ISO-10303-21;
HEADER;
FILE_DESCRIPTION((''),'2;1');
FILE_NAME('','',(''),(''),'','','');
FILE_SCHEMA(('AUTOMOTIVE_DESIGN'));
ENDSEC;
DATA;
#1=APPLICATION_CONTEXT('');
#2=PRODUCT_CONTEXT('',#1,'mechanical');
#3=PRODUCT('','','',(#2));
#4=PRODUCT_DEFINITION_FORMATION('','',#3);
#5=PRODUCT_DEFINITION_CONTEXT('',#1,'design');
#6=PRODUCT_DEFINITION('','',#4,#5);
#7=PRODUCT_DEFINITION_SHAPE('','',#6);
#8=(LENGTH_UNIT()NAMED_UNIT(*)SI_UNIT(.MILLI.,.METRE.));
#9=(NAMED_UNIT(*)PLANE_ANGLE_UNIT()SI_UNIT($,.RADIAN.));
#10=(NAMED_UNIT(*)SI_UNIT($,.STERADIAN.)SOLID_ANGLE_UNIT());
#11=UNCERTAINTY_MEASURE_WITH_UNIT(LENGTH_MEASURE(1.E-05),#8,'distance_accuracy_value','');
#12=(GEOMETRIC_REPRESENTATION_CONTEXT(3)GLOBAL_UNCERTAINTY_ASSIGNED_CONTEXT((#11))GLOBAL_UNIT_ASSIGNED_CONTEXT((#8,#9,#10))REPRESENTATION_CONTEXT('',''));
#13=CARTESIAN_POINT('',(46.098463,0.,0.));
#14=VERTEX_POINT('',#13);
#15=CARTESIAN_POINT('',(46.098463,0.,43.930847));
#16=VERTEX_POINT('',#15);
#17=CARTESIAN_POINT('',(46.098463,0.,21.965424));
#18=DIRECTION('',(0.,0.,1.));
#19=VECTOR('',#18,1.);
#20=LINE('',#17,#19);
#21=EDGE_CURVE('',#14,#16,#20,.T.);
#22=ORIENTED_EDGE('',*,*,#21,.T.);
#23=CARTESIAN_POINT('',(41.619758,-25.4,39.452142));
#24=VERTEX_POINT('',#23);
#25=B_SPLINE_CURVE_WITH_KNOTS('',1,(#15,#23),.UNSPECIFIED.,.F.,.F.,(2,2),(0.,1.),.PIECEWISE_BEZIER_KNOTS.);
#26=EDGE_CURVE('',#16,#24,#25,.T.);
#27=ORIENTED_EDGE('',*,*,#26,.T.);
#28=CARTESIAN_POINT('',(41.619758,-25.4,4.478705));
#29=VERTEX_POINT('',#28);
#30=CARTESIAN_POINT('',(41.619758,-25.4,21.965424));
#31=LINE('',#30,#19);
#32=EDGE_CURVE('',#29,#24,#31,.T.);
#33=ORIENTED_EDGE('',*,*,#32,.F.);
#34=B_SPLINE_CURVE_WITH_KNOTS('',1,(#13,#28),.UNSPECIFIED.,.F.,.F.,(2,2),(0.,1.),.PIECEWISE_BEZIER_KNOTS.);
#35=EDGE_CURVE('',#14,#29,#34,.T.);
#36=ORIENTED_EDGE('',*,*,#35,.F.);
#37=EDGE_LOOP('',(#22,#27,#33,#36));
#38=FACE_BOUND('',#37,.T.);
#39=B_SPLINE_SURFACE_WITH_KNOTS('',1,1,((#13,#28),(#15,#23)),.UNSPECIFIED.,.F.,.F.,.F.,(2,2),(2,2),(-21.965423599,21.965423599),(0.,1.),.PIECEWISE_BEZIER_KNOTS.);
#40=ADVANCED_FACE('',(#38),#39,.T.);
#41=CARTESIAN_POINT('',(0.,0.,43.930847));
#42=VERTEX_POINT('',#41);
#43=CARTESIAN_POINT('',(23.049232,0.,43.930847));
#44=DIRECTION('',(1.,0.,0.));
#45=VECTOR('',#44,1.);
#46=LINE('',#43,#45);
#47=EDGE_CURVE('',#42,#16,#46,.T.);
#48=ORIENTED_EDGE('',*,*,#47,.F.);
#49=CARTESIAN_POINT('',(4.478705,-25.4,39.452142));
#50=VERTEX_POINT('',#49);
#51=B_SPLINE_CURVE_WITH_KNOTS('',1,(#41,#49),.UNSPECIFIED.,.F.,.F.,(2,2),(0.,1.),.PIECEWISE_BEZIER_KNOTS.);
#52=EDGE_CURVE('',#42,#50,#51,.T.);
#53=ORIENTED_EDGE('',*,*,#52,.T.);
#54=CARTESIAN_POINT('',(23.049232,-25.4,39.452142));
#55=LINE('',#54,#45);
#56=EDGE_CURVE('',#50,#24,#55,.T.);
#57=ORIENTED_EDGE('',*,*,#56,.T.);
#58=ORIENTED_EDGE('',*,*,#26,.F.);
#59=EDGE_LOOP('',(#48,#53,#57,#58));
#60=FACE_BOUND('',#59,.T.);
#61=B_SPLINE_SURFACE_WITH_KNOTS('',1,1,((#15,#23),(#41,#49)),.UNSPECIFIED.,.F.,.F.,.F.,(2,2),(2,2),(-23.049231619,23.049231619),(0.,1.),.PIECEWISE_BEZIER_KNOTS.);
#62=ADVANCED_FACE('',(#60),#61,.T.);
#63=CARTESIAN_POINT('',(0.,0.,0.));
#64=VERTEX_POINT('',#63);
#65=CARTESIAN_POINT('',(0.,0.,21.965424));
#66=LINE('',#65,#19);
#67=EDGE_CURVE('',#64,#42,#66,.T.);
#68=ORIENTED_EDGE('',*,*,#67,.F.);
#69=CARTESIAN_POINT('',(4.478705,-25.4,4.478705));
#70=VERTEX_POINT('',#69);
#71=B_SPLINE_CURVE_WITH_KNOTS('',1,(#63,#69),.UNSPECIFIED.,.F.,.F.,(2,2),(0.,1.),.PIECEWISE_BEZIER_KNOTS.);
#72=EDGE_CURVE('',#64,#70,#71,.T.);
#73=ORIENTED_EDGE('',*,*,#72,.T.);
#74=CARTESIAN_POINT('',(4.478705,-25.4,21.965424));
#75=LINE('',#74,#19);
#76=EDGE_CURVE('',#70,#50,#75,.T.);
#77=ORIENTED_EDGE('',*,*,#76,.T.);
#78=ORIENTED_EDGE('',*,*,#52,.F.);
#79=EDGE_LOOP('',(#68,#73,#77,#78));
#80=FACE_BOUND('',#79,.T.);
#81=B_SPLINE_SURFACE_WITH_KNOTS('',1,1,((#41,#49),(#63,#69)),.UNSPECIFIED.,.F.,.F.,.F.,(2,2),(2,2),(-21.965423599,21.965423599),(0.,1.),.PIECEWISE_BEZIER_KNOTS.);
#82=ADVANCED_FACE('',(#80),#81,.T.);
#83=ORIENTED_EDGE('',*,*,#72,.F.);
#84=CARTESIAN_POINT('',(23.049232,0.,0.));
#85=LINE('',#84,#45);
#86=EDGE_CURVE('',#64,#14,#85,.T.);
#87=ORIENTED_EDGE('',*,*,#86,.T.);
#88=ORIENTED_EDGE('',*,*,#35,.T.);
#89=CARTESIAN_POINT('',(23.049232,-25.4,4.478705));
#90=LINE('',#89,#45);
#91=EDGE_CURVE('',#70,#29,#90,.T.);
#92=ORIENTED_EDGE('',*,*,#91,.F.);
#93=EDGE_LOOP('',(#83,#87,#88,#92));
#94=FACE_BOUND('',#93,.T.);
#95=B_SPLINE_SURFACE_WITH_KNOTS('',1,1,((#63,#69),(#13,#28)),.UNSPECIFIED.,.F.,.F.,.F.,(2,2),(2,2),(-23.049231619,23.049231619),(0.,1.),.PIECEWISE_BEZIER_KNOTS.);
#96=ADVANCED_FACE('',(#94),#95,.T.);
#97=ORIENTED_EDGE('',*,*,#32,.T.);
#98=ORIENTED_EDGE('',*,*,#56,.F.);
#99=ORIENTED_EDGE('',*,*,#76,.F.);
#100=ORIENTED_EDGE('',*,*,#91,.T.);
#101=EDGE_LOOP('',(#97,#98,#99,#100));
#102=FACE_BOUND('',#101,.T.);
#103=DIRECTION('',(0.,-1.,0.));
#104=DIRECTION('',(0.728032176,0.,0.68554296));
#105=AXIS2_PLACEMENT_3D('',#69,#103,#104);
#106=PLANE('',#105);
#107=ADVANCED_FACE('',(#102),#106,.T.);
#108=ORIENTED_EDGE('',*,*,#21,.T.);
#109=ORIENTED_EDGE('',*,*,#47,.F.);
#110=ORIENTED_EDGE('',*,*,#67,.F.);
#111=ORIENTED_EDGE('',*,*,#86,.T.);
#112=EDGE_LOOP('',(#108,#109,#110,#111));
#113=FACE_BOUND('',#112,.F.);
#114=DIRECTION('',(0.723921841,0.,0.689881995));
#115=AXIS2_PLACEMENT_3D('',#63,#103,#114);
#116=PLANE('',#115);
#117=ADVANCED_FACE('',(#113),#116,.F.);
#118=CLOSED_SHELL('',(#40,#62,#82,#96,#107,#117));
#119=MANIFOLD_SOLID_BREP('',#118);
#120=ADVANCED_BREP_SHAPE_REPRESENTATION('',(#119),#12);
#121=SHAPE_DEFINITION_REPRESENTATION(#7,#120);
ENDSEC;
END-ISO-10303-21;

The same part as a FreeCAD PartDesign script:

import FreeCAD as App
import Part
import Sketcher

V = App.Vector
Q = App.Units.Quantity

doc = App.newDocument("Part")
body = doc.addObject("PartDesign::Body", "Body")

# Sketch on XZ plane
sketch1 = doc.addObject("Sketcher::SketchObject", "Sketch")
body.addObject(sketch1)
sketch1.AttachmentSupport = (doc.XZ_Plane, [""])
sketch1.MapMode = "FlatFace"
sketch1.addGeometry([
    Part.LineSegment(V(0, 43.930847, 0), V(0, 0, 0)),
    Part.LineSegment(V(0, 0, 0), V(46.098463, 0, 0)),
    Part.LineSegment(V(46.098463, 0, 0), V(46.098463, 43.930847, 0)),
    Part.LineSegment(V(46.098463, 43.930847, 0), V(0, 43.930847, 0)),
], False)
sketch1.addConstraint([
    Sketcher.Constraint("Coincident", 0, 2, 1, 1),
    Sketcher.Constraint("Coincident", 1, 2, 2, 1),
    Sketcher.Constraint("Coincident", 2, 2, 3, 1),
    Sketcher.Constraint("Coincident", 3, 2, 0, 1),
    Sketcher.Constraint("Vertical", 0),
    Sketcher.Constraint("Horizontal", 1),
    Sketcher.Constraint("Vertical", 2),
    Sketcher.Constraint("Horizontal", 3),
    Sketcher.Constraint("Coincident", 0, 2, -1, 1),
    Sketcher.Constraint("DistanceX", 1, 1, 1, 2, Q("1.8149001 in")),
    Sketcher.Constraint("DistanceY", 0, 2, 0, 1, Q("43.930847 mm")),
])
pad1 = doc.addObject("PartDesign::Pad", "Pad")
body.addObject(pad1)
pad1.Profile = sketch1
pad1.Length = Q("1 in")
pad1.TaperAngle = -10

doc.recompute()
